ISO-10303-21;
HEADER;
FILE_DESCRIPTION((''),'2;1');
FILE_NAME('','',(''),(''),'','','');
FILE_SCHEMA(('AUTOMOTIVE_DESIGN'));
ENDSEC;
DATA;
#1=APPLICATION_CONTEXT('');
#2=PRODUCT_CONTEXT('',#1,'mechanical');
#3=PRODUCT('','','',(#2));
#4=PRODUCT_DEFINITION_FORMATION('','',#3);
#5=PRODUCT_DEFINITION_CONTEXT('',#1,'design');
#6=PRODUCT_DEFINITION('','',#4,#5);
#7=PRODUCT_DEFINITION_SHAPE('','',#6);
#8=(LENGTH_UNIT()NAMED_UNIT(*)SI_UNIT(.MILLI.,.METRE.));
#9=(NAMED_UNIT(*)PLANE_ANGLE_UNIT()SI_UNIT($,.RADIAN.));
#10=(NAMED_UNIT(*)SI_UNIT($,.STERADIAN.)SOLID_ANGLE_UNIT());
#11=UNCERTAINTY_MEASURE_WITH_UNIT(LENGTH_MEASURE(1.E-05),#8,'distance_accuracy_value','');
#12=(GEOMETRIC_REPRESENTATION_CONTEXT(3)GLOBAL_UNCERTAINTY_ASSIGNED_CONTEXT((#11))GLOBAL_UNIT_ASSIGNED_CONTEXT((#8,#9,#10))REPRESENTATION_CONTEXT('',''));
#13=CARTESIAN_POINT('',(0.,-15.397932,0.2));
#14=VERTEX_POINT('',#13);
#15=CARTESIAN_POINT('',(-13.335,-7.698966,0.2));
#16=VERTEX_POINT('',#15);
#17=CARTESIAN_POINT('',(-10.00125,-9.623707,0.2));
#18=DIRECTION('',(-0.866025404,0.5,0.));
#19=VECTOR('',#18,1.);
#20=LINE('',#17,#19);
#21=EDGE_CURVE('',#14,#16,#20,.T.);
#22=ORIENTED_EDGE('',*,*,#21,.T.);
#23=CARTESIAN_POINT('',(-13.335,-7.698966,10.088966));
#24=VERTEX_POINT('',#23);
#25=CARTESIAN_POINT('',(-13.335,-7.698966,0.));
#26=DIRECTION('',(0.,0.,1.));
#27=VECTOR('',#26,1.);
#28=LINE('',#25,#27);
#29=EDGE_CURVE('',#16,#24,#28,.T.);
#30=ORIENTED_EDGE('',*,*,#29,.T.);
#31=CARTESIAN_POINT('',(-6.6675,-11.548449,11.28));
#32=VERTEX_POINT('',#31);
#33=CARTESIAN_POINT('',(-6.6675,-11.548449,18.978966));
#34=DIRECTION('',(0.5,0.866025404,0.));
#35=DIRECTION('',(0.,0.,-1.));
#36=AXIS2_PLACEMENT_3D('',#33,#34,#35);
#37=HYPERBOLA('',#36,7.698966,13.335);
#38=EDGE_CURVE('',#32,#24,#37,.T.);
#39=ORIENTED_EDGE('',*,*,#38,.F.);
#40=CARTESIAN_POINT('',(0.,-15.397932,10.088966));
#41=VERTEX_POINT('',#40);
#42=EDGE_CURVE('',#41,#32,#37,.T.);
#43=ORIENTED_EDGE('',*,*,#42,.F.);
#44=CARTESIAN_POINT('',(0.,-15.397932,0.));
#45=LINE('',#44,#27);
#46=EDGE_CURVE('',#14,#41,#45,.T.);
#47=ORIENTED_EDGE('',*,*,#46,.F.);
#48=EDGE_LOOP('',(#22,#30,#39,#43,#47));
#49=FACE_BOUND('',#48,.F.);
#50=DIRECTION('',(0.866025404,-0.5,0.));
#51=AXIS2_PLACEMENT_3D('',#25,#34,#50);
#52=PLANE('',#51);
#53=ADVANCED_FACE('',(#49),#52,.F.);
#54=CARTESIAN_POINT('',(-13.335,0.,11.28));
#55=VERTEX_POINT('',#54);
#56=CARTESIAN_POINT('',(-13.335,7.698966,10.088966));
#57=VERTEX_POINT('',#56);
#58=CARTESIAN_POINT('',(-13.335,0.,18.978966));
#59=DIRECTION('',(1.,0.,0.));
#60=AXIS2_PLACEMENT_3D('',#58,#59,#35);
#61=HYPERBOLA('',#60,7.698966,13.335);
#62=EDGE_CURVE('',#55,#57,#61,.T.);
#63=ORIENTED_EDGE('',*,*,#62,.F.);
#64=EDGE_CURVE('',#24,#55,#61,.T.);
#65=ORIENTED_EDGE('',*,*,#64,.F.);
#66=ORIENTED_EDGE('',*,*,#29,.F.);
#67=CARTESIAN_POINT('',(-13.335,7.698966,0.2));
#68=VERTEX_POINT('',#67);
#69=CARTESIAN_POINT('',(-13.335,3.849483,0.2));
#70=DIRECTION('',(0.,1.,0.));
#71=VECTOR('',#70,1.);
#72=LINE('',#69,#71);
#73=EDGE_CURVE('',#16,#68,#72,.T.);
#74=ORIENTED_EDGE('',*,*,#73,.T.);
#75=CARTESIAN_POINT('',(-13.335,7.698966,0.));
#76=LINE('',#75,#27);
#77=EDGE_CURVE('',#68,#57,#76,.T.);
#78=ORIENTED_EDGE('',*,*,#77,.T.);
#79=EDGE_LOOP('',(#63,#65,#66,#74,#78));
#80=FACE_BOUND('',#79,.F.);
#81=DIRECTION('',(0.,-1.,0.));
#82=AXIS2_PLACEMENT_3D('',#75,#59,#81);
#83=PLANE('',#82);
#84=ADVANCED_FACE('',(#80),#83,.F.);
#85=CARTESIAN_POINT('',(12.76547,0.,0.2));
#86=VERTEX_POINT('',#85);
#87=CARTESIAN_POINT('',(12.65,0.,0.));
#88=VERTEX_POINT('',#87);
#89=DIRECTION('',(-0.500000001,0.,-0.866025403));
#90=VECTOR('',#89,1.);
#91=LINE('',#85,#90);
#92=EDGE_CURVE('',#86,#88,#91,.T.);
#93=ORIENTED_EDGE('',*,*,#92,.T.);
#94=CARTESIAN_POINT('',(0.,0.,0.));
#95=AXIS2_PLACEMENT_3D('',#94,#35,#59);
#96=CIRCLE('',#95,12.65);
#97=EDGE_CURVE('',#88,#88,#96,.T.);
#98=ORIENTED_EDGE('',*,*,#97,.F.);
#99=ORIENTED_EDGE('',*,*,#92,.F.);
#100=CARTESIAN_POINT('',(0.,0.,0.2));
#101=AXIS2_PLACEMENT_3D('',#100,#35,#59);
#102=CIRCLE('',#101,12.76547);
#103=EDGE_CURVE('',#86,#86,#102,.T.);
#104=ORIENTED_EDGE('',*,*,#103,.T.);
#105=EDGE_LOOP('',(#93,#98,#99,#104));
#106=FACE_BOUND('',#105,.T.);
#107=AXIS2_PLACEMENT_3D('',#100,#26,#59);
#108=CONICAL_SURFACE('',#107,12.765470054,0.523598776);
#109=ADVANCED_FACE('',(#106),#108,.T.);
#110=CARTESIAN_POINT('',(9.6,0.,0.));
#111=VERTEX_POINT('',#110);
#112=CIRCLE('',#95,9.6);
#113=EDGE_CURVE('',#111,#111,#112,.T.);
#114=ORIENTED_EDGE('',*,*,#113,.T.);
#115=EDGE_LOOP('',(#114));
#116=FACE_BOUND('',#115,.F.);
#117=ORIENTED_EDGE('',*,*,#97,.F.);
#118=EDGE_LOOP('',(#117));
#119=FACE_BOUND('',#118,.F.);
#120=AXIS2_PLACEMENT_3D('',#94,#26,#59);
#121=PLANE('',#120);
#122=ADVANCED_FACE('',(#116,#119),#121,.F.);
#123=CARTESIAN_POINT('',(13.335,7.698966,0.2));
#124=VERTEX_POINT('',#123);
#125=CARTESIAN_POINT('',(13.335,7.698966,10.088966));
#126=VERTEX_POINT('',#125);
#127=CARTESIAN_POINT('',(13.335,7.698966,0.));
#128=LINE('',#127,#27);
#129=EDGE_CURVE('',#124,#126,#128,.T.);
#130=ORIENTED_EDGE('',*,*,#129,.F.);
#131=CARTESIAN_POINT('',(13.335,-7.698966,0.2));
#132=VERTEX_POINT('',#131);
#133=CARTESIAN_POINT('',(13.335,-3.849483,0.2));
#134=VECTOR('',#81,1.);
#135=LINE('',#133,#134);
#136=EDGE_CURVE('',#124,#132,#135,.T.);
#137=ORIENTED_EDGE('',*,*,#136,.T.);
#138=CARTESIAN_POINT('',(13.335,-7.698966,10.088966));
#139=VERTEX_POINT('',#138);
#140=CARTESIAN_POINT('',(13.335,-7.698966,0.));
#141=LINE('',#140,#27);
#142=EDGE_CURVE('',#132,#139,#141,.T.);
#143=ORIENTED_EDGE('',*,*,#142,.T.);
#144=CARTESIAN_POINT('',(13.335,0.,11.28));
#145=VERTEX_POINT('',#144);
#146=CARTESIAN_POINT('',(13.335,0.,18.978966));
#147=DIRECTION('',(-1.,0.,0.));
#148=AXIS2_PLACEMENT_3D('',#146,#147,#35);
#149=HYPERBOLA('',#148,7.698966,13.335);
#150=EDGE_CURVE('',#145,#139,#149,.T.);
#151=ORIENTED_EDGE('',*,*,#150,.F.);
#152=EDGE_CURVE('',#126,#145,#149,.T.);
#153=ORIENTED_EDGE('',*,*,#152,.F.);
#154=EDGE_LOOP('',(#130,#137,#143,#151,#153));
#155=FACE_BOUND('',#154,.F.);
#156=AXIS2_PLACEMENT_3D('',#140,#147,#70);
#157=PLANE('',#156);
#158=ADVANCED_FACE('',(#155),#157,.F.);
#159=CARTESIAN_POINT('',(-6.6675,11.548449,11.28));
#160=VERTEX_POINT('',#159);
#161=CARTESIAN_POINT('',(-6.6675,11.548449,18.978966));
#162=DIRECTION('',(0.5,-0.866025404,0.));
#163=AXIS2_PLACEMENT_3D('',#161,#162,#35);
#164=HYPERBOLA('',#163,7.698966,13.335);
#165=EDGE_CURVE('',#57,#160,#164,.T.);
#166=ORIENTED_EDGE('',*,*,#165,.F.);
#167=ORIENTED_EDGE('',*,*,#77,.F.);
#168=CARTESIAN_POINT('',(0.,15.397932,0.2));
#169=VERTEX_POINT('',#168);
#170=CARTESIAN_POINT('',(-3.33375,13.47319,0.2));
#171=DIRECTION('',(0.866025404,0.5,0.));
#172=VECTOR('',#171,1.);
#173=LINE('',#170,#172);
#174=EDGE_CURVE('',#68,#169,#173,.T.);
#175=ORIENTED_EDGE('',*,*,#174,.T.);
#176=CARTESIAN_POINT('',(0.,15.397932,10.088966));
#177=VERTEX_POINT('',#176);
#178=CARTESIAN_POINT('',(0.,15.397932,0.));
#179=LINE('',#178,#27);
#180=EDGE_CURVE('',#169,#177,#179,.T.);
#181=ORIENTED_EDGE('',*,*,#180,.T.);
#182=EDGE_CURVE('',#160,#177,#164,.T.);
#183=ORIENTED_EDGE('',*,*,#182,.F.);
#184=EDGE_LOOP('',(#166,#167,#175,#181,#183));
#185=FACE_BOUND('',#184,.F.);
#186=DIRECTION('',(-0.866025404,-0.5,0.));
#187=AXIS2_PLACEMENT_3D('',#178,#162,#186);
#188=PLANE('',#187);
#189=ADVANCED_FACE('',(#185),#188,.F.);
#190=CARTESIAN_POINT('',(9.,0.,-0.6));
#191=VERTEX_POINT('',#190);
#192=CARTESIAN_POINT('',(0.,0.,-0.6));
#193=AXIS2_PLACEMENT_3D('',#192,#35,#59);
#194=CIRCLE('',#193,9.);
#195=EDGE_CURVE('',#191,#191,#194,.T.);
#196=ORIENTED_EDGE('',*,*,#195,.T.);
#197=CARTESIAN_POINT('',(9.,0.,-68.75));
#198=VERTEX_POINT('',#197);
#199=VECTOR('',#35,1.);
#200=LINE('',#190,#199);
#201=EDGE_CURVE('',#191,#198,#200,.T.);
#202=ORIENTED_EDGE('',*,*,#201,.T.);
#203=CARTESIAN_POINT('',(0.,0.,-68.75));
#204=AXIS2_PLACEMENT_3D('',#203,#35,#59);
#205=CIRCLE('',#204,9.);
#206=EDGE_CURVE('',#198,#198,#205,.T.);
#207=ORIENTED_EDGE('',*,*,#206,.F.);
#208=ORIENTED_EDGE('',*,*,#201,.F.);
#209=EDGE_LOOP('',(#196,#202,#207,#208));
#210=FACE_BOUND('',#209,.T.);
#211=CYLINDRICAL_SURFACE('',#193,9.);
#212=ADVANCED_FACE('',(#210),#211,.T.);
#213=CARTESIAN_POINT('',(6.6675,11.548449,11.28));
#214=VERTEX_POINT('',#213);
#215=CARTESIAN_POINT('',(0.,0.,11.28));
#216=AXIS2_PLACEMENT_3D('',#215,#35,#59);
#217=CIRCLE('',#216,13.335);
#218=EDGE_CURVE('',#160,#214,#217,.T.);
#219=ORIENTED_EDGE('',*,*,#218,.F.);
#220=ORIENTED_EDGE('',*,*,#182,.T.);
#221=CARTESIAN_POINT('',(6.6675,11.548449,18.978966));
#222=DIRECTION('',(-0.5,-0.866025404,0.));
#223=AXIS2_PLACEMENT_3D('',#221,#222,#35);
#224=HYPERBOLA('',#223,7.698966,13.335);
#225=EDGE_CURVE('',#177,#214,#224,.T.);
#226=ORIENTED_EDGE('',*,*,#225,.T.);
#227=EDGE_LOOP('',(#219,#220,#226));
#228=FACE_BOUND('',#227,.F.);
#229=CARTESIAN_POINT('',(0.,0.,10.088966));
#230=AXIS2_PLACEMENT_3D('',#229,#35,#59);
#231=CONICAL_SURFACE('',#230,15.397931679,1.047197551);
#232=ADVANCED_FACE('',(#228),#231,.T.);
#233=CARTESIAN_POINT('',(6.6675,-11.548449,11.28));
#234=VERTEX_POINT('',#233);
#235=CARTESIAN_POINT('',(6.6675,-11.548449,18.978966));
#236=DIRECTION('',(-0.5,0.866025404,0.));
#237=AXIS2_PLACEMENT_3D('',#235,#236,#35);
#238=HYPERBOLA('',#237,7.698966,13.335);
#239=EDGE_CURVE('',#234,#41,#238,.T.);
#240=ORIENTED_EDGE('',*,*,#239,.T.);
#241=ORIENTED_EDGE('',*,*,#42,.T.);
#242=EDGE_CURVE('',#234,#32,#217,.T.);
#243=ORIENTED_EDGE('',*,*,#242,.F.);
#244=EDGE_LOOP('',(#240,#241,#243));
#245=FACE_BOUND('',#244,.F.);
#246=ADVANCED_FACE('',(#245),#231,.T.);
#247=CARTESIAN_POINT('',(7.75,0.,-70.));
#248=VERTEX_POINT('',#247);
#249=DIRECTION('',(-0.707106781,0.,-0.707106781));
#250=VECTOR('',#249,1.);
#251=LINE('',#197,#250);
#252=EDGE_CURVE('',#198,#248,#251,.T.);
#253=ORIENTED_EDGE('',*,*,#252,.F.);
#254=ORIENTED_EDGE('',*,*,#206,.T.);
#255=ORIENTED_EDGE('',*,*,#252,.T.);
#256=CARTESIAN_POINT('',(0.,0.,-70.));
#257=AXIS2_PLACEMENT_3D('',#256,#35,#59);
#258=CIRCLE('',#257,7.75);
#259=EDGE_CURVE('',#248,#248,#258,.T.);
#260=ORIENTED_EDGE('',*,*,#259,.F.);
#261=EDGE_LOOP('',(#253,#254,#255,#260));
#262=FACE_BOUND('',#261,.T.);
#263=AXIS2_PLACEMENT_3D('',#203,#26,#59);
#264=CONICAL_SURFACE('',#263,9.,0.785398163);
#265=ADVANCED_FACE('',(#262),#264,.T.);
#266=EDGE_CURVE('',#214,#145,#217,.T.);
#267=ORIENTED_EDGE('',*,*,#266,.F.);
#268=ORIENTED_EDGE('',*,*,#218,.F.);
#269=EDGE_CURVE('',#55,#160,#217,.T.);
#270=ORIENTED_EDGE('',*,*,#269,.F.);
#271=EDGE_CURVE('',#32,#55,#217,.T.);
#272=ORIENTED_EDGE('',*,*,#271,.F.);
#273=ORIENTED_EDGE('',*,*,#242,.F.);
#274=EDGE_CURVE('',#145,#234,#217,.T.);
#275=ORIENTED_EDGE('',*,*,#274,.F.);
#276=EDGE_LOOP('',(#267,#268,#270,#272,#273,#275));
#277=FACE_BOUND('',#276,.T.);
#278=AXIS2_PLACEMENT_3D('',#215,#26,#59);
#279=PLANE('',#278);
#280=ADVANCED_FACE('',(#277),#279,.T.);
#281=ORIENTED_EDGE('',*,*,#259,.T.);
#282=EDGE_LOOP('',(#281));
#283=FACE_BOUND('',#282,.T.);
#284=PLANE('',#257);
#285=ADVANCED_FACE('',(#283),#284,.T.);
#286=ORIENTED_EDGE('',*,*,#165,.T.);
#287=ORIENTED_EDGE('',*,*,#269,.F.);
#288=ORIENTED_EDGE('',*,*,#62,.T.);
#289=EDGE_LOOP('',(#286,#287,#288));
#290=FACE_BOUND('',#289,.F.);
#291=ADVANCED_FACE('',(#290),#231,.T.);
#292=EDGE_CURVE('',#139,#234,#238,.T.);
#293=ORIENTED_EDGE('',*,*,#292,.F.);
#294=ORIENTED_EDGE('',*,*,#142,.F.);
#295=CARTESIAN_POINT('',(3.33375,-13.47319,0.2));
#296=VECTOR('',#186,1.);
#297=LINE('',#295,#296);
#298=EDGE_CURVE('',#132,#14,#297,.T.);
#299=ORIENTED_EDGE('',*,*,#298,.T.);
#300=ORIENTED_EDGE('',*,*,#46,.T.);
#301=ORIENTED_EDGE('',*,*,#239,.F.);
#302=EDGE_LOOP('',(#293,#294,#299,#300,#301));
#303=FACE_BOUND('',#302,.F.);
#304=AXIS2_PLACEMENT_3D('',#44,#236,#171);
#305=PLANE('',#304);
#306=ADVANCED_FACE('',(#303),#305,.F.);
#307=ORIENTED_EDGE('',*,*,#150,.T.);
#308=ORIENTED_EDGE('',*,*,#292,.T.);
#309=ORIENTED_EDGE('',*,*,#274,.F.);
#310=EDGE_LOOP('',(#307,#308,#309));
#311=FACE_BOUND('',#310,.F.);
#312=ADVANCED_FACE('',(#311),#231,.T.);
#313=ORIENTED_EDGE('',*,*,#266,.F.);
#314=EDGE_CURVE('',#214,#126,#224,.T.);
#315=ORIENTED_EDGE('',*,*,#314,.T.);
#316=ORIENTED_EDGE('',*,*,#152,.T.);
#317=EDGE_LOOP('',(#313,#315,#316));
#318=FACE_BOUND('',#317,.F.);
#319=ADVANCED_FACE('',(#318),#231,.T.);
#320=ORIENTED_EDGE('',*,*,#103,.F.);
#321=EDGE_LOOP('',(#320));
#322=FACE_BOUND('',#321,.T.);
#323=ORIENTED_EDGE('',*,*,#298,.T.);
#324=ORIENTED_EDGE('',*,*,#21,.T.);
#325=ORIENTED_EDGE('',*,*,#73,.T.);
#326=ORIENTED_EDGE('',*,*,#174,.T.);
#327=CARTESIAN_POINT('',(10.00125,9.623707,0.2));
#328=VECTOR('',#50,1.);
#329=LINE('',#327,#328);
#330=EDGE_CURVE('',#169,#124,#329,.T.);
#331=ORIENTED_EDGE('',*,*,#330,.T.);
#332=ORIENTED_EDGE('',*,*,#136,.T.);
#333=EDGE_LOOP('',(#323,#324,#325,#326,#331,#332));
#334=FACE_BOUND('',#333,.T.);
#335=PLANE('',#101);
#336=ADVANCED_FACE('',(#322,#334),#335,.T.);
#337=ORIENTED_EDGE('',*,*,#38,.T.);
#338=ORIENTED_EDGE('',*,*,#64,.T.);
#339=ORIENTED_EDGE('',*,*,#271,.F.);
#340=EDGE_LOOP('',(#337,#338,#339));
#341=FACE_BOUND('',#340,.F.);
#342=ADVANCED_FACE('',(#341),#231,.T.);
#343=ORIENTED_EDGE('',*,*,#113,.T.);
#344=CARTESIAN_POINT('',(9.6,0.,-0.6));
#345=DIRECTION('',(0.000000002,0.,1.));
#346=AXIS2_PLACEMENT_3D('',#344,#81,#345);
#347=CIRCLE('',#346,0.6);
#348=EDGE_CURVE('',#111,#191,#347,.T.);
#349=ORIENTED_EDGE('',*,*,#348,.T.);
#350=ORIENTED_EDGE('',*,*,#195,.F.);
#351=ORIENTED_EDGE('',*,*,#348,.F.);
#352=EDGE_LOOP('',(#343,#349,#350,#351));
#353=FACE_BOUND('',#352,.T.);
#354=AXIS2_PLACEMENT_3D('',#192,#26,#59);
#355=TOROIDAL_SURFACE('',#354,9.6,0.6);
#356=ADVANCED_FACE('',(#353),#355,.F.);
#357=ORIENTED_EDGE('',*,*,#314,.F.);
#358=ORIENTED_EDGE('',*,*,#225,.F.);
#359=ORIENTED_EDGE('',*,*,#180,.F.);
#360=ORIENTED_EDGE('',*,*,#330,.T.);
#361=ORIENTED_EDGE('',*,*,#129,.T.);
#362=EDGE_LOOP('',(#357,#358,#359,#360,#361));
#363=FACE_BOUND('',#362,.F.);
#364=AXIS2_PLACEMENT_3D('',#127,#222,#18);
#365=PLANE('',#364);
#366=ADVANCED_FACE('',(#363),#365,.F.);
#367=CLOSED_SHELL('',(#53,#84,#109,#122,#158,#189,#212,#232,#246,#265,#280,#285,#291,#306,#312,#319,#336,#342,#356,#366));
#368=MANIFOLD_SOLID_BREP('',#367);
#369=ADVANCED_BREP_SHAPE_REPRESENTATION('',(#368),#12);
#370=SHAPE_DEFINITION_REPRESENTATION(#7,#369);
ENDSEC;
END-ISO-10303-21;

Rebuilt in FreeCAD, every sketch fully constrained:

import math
import FreeCAD as App
import Part
import Sketcher

V = App.Vector
Q = App.Units.Quantity


def add_polygon(sketch, points):
    """Adds a closed chain of lines whose ends are joined by coincident constraints."""
    first, n = sketch.GeometryCount, len(points)
    for a, b in zip(points, points[1:] + points[:1]):
        sketch.addGeometry(Part.LineSegment(App.Vector(*a, 0), App.Vector(*b, 0)), False)
    for i in range(n):
        sketch.addConstraint(Sketcher.Constraint("Coincident", first + i, 2, first + (i + 1) % n, 1))

doc = App.newDocument("Part")
body = doc.addObject("PartDesign::Body", "Body")

sketch1 = body.newObject("Sketcher::SketchObject", "Sketch")
sketch1.AttachmentSupport = (doc.getObject("XY_Plane"), [""])
sketch1.MapMode = "FlatFace"
add_polygon(sketch1, [(0, 15), (-13, 8), (-13, -8), (0, -15), (13, -8), (13, 8)])
sketch1.addConstraint([
    Sketcher.Constraint("Vertical", 1),
    Sketcher.Constraint("Vertical", 4),
    Sketcher.Constraint("Symmetric", 0, 2, 3, 2, -1, 1),
    Sketcher.Constraint("Symmetric", 2, 2, 5, 2, -1, 1),
    Sketcher.Constraint("PointOnObject", 2, 2, -2),
    Sketcher.Constraint("Parallel", 2, 5),
    Sketcher.Constraint("Horizontal", 1, 2, 3, 2),
    Sketcher.Constraint("Angle", 0, Q("-150 deg")),
    Sketcher.Constraint("DistanceX", 1, 2, 3, 2, Q("26.67 mm")),
    Sketcher.Constraint("DistanceY", 1, 2, 1, 1, Q("15.397932 mm")),
])
pad1 = body.newObject("PartDesign::Pad", "Pad")
pad1.Profile = sketch1
pad1.Length = 11.28

sketch2 = body.newObject("Sketcher::SketchObject", "Sketch001")
sketch2.AttachmentSupport = (doc.getObject("YZ_Plane"), [""])
sketch2.MapMode = "FlatFace"
sketch2.addGeometry([
    Part.LineSegment(V(9.6, 0, 0), V(0, 0, 0)),
    Part.LineSegment(V(0, 0, 0), V(0, -70, 0)),
    Part.LineSegment(V(0, -70, 0), V(7.8, -70, 0)),
    Part.LineSegment(V(7.8, -70, 0), V(9, -68.8, 0)),
    Part.LineSegment(V(9, -68.8, 0), V(9, -0.6, 0)),
    Part.ArcOfCircle(Part.Circle(V(9.6, -0.6, 0), V(0, 0, 1), 0.6), math.radians(90), math.radians(180)),
], False)
sketch2.addConstraint([
    Sketcher.Constraint("Coincident", 0, 2, 1, 1),
    Sketcher.Constraint("Coincident", 1, 2, 2, 1),
    Sketcher.Constraint("Coincident", 2, 2, 3, 1),
    Sketcher.Constraint("Coincident", 3, 2, 4, 1),
    Sketcher.Constraint("Tangent", 4, 2, 5, 2),
    Sketcher.Constraint("Tangent", 5, 1, 0, 1),
    Sketcher.Constraint("Horizontal", 0),
    Sketcher.Constraint("Vertical", 1),
    Sketcher.Constraint("Horizontal", 2),
    Sketcher.Constraint("Vertical", 4),
    Sketcher.Constraint("Coincident", 0, 2, -1, 1),
    Sketcher.Constraint("Radius", 5, Q("0.6 mm")),
    Sketcher.Constraint("DistanceY", 1, 2, 1, 1, Q("70 mm")),
    Sketcher.Constraint("Angle", 3, Q("45 deg")),
    Sketcher.Constraint("DistanceX", 0, 2, 0, 1, Q("9.6 mm")),
    Sketcher.Constraint("DistanceX", 2, 1, 2, 2, Q("7.75 mm")),
])
revolution = body.newObject("PartDesign::Revolution", "Revolution")
revolution.Profile = sketch2
revolution.ReferenceAxis = (sketch2, ["V_Axis"])
revolution.Angle = 360

sketch3 = body.newObject("Sketcher::SketchObject", "Sketch002")
sketch3.AttachmentSupport = (doc.getObject("YZ_Plane"), [""])
sketch3.MapMode = "FlatFace"
add_polygon(sketch3, [(15.4, 10.09), (15.4, 11.28), (13.34, 11.28)])
add_polygon(sketch3, [(15.4, 0.2), (12.77, 0.2), (12.65, 0), (15.4, 0)])
sketch3.addConstraint([
    Sketcher.Constraint("Vertical", 0),
    Sketcher.Constraint("Horizontal", 1),
    Sketcher.Constraint("Horizontal", 3),
    Sketcher.Constraint("Horizontal", 5),
    Sketcher.Constraint("Vertical", 6),
    Sketcher.Constraint("PointOnObject", 4, 2, -1),
    Sketcher.Constraint("Perpendicular", 2, 4),
    Sketcher.Constraint("Vertical", 2, 2, 5, 2),
    Sketcher.Constraint("Angle", 2, Q("-30 deg")),
    Sketcher.Constraint("DistanceY", 6, 1, 6, 2, Q("0.2 mm")),
    Sketcher.Constraint("DistanceY", -1, 1, 0, 2, Q("11.28 mm")),
    Sketcher.Constraint("DistanceX", -1, 1, 4, 2, Q("12.65 mm")),
    Sketcher.Constraint("DistanceX", -1, 1, 1, 2, Q("13.335 mm")),
    Sketcher.Constraint("DistanceX", 1, 2, 1, 1, Q("2.062932 mm")),
])
groove = body.newObject("PartDesign::Groove", "Groove")
groove.Profile = sketch3
groove.ReferenceAxis = (sketch3, ["V_Axis"])
groove.Angle = 360

doc.recompute()
